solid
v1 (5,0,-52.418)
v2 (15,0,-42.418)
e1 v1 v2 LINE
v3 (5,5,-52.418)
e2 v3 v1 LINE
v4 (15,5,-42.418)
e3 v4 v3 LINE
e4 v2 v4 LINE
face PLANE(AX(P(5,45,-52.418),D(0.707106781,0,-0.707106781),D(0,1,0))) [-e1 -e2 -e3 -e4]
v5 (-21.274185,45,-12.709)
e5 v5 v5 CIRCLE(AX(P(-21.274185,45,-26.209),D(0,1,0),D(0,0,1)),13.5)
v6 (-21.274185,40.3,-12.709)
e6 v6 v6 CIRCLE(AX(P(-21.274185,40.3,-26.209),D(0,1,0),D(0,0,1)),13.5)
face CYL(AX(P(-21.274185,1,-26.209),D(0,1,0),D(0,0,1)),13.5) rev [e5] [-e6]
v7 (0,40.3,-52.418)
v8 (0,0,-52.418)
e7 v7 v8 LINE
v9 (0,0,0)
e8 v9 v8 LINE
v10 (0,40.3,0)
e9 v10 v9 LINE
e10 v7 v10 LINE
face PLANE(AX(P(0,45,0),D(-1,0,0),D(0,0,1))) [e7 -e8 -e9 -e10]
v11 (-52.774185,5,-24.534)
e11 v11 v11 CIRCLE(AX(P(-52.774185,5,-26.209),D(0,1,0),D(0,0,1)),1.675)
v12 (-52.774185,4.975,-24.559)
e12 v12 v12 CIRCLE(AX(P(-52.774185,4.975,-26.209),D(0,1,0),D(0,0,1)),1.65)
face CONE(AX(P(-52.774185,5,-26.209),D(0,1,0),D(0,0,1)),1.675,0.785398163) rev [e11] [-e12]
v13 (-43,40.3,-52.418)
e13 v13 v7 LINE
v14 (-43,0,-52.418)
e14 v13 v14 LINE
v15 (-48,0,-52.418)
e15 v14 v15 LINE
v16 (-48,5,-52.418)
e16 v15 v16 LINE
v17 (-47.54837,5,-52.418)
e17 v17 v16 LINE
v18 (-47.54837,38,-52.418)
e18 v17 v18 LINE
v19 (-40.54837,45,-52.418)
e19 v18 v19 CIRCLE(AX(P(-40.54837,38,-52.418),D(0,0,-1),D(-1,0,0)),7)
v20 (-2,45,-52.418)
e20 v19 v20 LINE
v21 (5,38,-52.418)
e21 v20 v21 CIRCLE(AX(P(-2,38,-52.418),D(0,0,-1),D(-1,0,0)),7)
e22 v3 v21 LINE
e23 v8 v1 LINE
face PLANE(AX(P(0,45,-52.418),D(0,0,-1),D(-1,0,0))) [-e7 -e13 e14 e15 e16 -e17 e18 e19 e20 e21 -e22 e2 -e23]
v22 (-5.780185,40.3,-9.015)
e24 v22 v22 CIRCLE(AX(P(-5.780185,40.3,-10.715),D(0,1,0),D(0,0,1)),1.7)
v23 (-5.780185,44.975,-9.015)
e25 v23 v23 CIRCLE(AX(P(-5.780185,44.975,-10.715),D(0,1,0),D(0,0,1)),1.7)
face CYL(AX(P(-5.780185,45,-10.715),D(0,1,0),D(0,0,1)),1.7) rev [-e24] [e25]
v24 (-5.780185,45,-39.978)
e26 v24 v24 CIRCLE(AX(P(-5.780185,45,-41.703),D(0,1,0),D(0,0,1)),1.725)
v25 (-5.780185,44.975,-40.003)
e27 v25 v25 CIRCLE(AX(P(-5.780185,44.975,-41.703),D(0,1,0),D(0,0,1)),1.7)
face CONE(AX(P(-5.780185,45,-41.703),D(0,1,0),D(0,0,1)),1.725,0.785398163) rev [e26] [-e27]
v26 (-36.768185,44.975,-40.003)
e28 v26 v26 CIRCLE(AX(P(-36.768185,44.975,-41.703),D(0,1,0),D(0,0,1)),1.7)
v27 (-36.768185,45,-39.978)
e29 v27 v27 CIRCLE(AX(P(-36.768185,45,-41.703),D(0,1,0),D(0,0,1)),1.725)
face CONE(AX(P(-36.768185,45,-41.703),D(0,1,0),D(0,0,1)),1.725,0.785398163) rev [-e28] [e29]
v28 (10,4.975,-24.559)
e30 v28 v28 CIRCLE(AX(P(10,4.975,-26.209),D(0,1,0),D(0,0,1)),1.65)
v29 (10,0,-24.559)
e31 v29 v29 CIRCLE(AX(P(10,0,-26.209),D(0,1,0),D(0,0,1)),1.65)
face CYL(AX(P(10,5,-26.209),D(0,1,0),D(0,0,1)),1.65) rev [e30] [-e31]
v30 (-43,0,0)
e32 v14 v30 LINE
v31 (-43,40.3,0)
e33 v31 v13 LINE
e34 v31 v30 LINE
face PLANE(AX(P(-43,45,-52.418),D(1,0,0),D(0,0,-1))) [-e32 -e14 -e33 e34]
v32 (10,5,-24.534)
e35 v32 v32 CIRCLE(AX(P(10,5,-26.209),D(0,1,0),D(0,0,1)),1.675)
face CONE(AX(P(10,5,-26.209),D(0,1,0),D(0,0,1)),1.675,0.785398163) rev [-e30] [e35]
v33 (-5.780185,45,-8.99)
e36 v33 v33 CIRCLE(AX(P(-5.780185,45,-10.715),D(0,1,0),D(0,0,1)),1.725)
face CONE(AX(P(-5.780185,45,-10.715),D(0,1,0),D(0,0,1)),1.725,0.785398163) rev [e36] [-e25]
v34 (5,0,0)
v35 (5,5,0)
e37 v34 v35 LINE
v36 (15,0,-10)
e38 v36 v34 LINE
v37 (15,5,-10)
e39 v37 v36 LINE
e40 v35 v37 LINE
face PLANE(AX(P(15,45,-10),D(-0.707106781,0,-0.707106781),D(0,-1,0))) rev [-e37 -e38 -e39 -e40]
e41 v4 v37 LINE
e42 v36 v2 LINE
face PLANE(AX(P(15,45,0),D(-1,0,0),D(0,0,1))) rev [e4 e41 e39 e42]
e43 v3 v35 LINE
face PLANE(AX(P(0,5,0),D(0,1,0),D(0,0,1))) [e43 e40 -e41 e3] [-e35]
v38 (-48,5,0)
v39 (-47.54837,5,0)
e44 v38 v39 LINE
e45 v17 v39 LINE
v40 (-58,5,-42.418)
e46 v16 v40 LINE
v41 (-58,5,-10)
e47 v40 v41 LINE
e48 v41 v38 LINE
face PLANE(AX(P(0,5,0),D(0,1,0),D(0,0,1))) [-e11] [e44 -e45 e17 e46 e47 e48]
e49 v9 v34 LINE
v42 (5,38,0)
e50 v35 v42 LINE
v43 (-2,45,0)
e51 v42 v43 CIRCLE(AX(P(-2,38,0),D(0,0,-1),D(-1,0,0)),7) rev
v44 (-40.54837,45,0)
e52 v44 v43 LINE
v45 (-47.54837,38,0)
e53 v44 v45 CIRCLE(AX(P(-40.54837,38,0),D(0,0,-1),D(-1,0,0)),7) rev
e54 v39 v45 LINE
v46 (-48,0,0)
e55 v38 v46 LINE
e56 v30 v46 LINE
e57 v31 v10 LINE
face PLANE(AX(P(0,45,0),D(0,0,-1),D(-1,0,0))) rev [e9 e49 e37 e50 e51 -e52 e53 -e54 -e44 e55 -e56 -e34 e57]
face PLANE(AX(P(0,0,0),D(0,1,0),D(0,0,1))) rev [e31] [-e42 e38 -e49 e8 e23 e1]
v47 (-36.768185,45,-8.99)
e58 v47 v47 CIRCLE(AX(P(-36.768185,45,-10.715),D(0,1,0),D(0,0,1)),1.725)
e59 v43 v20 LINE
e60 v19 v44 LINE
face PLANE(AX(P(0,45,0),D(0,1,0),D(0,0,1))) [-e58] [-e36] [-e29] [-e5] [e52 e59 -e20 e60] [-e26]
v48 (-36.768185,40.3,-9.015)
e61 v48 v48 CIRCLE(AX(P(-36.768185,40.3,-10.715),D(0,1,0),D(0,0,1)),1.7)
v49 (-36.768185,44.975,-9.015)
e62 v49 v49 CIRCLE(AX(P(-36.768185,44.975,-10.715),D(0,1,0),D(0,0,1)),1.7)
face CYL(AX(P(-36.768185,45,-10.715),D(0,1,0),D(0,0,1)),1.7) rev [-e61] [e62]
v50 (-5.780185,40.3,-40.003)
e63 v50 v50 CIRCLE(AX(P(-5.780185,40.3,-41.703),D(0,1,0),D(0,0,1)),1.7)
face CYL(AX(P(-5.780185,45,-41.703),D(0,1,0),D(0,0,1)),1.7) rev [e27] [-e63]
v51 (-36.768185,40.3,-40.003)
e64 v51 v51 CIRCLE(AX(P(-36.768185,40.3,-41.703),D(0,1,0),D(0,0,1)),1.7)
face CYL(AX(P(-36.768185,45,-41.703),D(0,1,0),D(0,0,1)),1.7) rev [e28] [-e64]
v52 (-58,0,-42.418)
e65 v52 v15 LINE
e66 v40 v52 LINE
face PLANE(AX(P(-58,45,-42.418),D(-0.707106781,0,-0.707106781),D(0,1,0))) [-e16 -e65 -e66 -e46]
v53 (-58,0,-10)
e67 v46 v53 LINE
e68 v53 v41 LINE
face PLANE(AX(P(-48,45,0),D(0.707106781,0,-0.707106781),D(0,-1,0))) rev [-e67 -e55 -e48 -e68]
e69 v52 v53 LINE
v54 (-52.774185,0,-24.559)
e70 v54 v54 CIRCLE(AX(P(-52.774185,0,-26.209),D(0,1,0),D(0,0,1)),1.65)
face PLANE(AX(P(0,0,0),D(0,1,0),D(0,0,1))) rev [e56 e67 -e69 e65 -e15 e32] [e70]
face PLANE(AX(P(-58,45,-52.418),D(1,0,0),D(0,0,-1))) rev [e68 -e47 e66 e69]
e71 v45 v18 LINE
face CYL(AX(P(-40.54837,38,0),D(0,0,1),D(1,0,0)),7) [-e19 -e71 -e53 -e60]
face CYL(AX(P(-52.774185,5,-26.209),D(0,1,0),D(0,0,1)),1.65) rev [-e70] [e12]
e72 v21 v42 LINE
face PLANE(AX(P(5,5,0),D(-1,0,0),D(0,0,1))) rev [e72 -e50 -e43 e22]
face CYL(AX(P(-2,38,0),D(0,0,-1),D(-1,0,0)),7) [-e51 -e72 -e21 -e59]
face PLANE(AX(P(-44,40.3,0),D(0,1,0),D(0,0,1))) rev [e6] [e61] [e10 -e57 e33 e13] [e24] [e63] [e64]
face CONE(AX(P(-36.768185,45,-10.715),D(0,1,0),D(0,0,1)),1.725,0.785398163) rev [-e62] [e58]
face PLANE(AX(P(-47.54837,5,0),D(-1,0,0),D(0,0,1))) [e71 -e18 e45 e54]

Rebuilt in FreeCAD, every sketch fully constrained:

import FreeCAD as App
import Part
import Sketcher


def edges_at(feature, points):
    """Names of the edges that pass closest to the given points."""
    edges = feature.Shape.Edges
    near = lambda p: min(range(len(edges)), key=lambda i: edges[i].distToShape(Part.Vertex(*p))[0])
    return sorted({f"Edge{near(p) + 1}" for p in points})

doc = App.newDocument("Part")
params = doc.addObject("Spreadsheet::Sheet", "Params")
for row, (alias, value) in enumerate([
    ("sketch1_width", "15 mm"),
    ("pad1_length", "45 mm"),
    ("sketch2_width", "15 mm"),
    ("pad2_length", "45 mm"),
    ("sketch3_width", "10 mm"),
    ("pad3_length", "40 mm"),
    ("sketch4_width", "4.7 mm"),
    ("pad4_length", "44 mm"),
    ("sketch5_diameter", "3.4 mm"),
    ("hole_diameter", "3.4 mm"),
    ("hole_csink_diameter", "3.45 mm"),
    ("sketch6_diameter", "27 mm"),
    ("pocket1_length", "44 mm"),
    ("sketch7_diameter", "3.3 mm"),
    ("hole2_diameter", "3.3 mm"),
    ("hole2_csink_diameter", "3.35 mm"),
    ("chamfer_size", "10 mm"),
    ("fillet_radius", "7 mm"),
], start=1):
    params.set(f"A{row}", alias)
    params.set(f"B{row}", "=" + value)
    params.setAlias(f"B{row}", alias)

body = doc.addObject("PartDesign::Body", "Body")

# Sketch on XZ plane
sketch1 = body.newObject("Sketcher::SketchObject", "Sketch")
sketch1.AttachmentSupport = (doc.getObject("XZ_Plane"), [""])
sketch1.MapMode = "FlatFace"
sketch1.addGeometry([
    Part.LineSegment(App.Vector(0, -52.418, 0), App.Vector(0, 0, 0)),
    Part.LineSegment(App.Vector(0, 0, 0), App.Vector(15, 0, 0)),
    Part.LineSegment(App.Vector(15, 0, 0), App.Vector(15, -52.418, 0)),
    Part.LineSegment(App.Vector(15, -52.418, 0), App.Vector(0, -52.418, 0)),
], False)
sketch1.addConstraint([
    Sketcher.Constraint("Coincident", 0, 2, 1, 1),
    Sketcher.Constraint("Coincident", 1, 2, 2, 1),
    Sketcher.Constraint("Coincident", 2, 2, 3, 1),
    Sketcher.Constraint("Coincident", 3, 2, 0, 1),
    Sketcher.Constraint("Vertical", 0),
    Sketcher.Constraint("Horizontal", 1),
    Sketcher.Constraint("Vertical", 2),
    Sketcher.Constraint("Horizontal", 3),
    Sketcher.Constraint("Coincident", 0, 2, -1, 1),
    Sketcher.Constraint("DistanceX", 1, 1, 1, 2, 15.0),
    Sketcher.Constraint("DistanceY", 0, 1, 0, 2, 52.418),
])
sketch1.setExpression("Constraints[9]", "Params.sketch1_width")
pad1 = body.newObject("PartDesign::Pad", "Pad")
pad1.Profile = sketch1
pad1.setExpression("Length", "Params.pad1_length")
pad1.Reversed = True
body2 = doc.addObject("PartDesign::Body", "Body001")

# Sketch on XZ plane
sketch2 = body2.newObject("Sketcher::SketchObject", "Sketch001")
sketch2.AttachmentSupport = (doc.getObject("XZ_Plane001"), [""])
sketch2.MapMode = "FlatFace"
sketch2.addGeometry([
    Part.LineSegment(App.Vector(-58, -52.418, 0), App.Vector(-58, 0, 0)),
    Part.LineSegment(App.Vector(-58, 0, 0), App.Vector(-43, 0, 0)),
    Part.LineSegment(App.Vector(-43, 0, 0), App.Vector(-43, -52.418, 0)),
    Part.LineSegment(App.Vector(-43, -52.418, 0), App.Vector(-58, -52.418, 0)),
], False)
sketch2.addConstraint([
    Sketcher.Constraint("Coincident", 0, 2, 1, 1),
    Sketcher.Constraint("Coincident", 1, 2, 2, 1),
    Sketcher.Constraint("Coincident", 2, 2, 3, 1),
    Sketcher.Constraint("Coincident", 3, 2, 0, 1),
    Sketcher.Constraint("Vertical", 0),
    Sketcher.Constraint("Horizontal", 1),
    Sketcher.Constraint("Vertical", 2),
    Sketcher.Constraint("Horizontal", 3),
    Sketcher.Constraint("PointOnObject", 0, 2, -1),
    Sketcher.Constraint("DistanceX", 1, 1, 1, 2, 15.0),
    Sketcher.Constraint("DistanceX", 0, 2, -1, 1, 58.0),
    Sketcher.Constraint("DistanceY", 0, 1, 0, 2, 52.418),
])
sketch2.setExpression("Constraints[9]", "Params.sketch2_width")
pad2 = body2.newObject("PartDesign::Pad", "Pad001")
pad2.Profile = sketch2
pad2.setExpression("Length", "Params.pad2_length")
pad2.Reversed = True
body3 = doc.addObject("PartDesign::Body", "Body002")
body3.AllowCompound = True

# Sketch on XZ plane
sketch3 = body3.newObject("Sketcher::SketchObject", "Sketch002")
sketch3.AttachmentSupport = (doc.getObject("XZ_Plane002"), [""])
sketch3.MapMode = "FlatFace"
sketch3.AttachmentOffset = App.Placement(App.Vector(0, 0, -45), App.Rotation())
sketch3.addGeometry([
    Part.LineSegment(App.Vector(-58, -52.418, 0), App.Vector(-58, 0, 0)),  # 0
    Part.LineSegment(App.Vector(-58, 0, 0), App.Vector(-47.54837, 0, 0)),  # 1
    Part.LineSegment(App.Vector(-47.54837, 0, 0), App.Vector(-47.54837, -52.418, 0)),  # 2
    Part.LineSegment(App.Vector(-47.54837, -52.418, 0), App.Vector(-58, -52.418, 0)),  # 3
    Part.LineSegment(App.Vector(5, -52.418, 0), App.Vector(5, 0, 0)),  # 4
    Part.LineSegment(App.Vector(5, 0, 0), App.Vector(15, 0, 0)),  # 5
    Part.LineSegment(App.Vector(15, 0, 0), App.Vector(15, -52.418, 0)),  # 6
    Part.LineSegment(App.Vector(15, -52.418, 0), App.Vector(5, -52.418, 0)),  # 7
], False)
sketch3.addConstraint([
    Sketcher.Constraint("Coincident", 0, 2, 1, 1),
    Sketcher.Constraint("Coincident", 1, 2, 2, 1),
    Sketcher.Constraint("Coincident", 2, 2, 3, 1),
    Sketcher.Constraint("Coincident", 3, 2, 0, 1),
    Sketcher.Constraint("Coincident", 4, 2, 5, 1),
    Sketcher.Constraint("Coincident", 5, 2, 6, 1),
    Sketcher.Constraint("Coincident", 6, 2, 7, 1),
    Sketcher.Constraint("Coincident", 7, 2, 4, 1),
    Sketcher.Constraint("Vertical", 0),
    Sketcher.Constraint("Horizontal", 1),
    Sketcher.Constraint("Vertical", 2),
    Sketcher.Constraint("Horizontal", 3),
    Sketcher.Constraint("Vertical", 4),
    Sketcher.Constraint("Horizontal", 5),
    Sketcher.Constraint("Vertical", 6),
    Sketcher.Constraint("Horizontal", 7),
    Sketcher.Constraint("PointOnObject", 0, 2, -1),
    Sketcher.Constraint("PointOnObject", 4, 2, -1),
    Sketcher.Constraint("Horizontal", 3, 2, 6, 2),
    Sketcher.Constraint("DistanceX", 5, 1, 5, 2, 10.0),
    Sketcher.Constraint("DistanceX", 0, 2, -1, 1, 58.0),
    Sketcher.Constraint("DistanceX", -1, 1, 4, 2, 5.0),
    Sketcher.Constraint("DistanceY", 0, 1, 0, 2, 52.418),
    Sketcher.Constraint("DistanceX", 1, 1, 1, 2, 10.45163),
])
sketch3.setExpression("Constraints[19]", "Params.sketch3_width")
pad3 = body3.newObject("PartDesign::Pad", "Pad002")
pad3.Profile = sketch3
pad3.setExpression("Length", "Params.pad3_length")
doc.recompute()

body4 = doc.addObject("PartDesign::Body", "Body003")
body4.BaseFeature = body3
boolean = body.newObject("PartDesign::Boolean", "Boolean")
boolean.Type = "Cut"
boolean.addObjects([body4])
doc.recompute()

boolean2 = body2.newObject("PartDesign::Boolean", "Boolean001")
boolean2.Type = "Cut"
boolean2.addObjects([body3])
body.AllowCompound = True
doc.recompute()

boolean3 = body.newObject("PartDesign::Boolean", "Boolean002")
boolean3.Type = "Fuse"
boolean3.addObjects([body2])

# Sketch on YZ plane
sketch4 = body.newObject("Sketcher::SketchObject", "Sketch003")
sketch4.AttachmentSupport = (doc.getObject("YZ_Plane"), [""])
sketch4.MapMode = "FlatFace"
sketch4.addGeometry([
    Part.LineSegment(App.Vector(45, -52.418, 0), App.Vector(40.3, -52.418, 0)),
    Part.LineSegment(App.Vector(40.3, -52.418, 0), App.Vector(40.3, 0, 0)),
    Part.LineSegment(App.Vector(40.3, 0, 0), App.Vector(45, 0, 0)),
    Part.LineSegment(App.Vector(45, 0, 0), App.Vector(45, -52.418, 0)),
], False)
sketch4.addConstraint([
    Sketcher.Constraint("Coincident", 0, 2, 1, 1),
    Sketcher.Constraint("Coincident", 1, 2, 2, 1),
    Sketcher.Constraint("Coincident", 2, 2, 3, 1),
    Sketcher.Constraint("Coincident", 3, 2, 0, 1),
    Sketcher.Constraint("Horizontal", 0),
    Sketcher.Constraint("Vertical", 1),
    Sketcher.Constraint("Horizontal", 2),
    Sketcher.Constraint("Vertical", 3),
    Sketcher.Constraint("PointOnObject", 1, 2, -1),
    Sketcher.Constraint("DistanceX", 0, 2, 0, 1, 4.7),
    Sketcher.Constraint("DistanceX", -1, 1, 2, 2, 45.0),
    Sketcher.Constraint("DistanceY", 1, 1, 1, 2, 52.418),
])
sketch4.setExpression("Constraints[9]", "Params.sketch4_width")
pad4 = body.newObject("PartDesign::Pad", "Pad003")
pad4.Profile = sketch4
pad4.setExpression("Length", "Params.pad4_length")
pad4.Reversed = True

# Sketch on XZ plane
sketch5 = body.newObject("Sketcher::SketchObject", "Sketch004")
sketch5.AttachmentSupport = (doc.getObject("XZ_Plane"), [""])
sketch5.MapMode = "FlatFace"
sketch5.AttachmentOffset = App.Placement(App.Vector(0, 0, -45), App.Rotation())
sketch5.addGeometry([
    Part.Circle(App.Vector(-36.768185, -41.703, 0), App.Vector(0, 0, 1), 1.7),
    Part.Circle(App.Vector(-5.780185, -41.703, 0), App.Vector(0, 0, 1), 1.7),
    Part.Circle(App.Vector(-5.780185, -10.715, 0), App.Vector(0, 0, 1), 1.7),
    Part.Circle(App.Vector(-36.768185, -10.715, 0), App.Vector(0, 0, 1), 1.7),
], False)
sketch5.addConstraint([
    Sketcher.Constraint("Equal", 0, 1),
    Sketcher.Constraint("Equal", 1, 2),
    Sketcher.Constraint("Equal", 2, 3),
    Sketcher.Constraint("Horizontal", 0, 3, 1, 3),
    Sketcher.Constraint("Horizontal", 2, 3, 3, 3),
    Sketcher.Constraint("Vertical", 1, 3, 2, 3),
    Sketcher.Constraint("Vertical", 0, 3, 3, 3),
    Sketcher.Constraint("Diameter", 0, 3.4),
    Sketcher.Constraint("DistanceY", 0, 3, -1, 1, 41.703),
    Sketcher.Constraint("DistanceY", 2, 3, -1, 1, 10.715),
    Sketcher.Constraint("DistanceX", 0, 3, 1, 3, 30.988),
    Sketcher.Constraint("DistanceX", 0, 3, -1, 1, 36.768185),
])
sketch5.setExpression("Constraints[7]", "Params.sketch5_diameter")
doc.recompute()
hole = body.newObject("PartDesign::Hole", "Hole")
hole.Profile = sketch5
hole.ThreadType = "None"
hole.setExpression("Diameter", "Params.hole_diameter")
hole.DepthType = "ThroughAll"
hole.HoleCutType = "Countersink"
hole.setExpression("HoleCutDiameter", "Params.hole_csink_diameter")
hole.HoleCutCountersinkAngle = 90
hole.Reversed = True

# Sketch on XZ plane
sketch6 = body.newObject("Sketcher::SketchObject", "Sketch005")
sketch6.AttachmentSupport = (doc.getObject("XZ_Plane"), [""])
sketch6.MapMode = "FlatFace"
sketch6.AttachmentOffset = App.Placement(App.Vector(0, 0, -45), App.Rotation())
sketch6.addGeometry(Part.Circle(App.Vector(-21.274185, -26.209, 0), App.Vector(0, 0, 1), 13.5), False)
sketch6.addConstraint([
    Sketcher.Constraint("Diameter", 0, 27.0),
    Sketcher.Constraint("DistanceY", 0, 3, -1, 1, 26.209),
    Sketcher.Constraint("DistanceX", 0, 3, -1, 1, 21.274185),
])
sketch6.setExpression("Constraints[0]", "Params.sketch6_diameter")
pocket1 = body.newObject("PartDesign::Pocket", "Pocket")
pocket1.Profile = sketch6
pocket1.setExpression("Length", "Params.pocket1_length")
pocket1.Reversed = True

# Sketch on XZ plane
sketch7 = body.newObject("Sketcher::SketchObject", "Sketch006")
sketch7.AttachmentSupport = (doc.getObject("XZ_Plane"), [""])
sketch7.MapMode = "FlatFace"
sketch7.AttachmentOffset = App.Placement(App.Vector(0, 0, -5), App.Rotation())
sketch7.addGeometry([
    Part.Circle(App.Vector(-52.774185, -26.209, 0), App.Vector(0, 0, 1), 1.65),
    Part.Circle(App.Vector(10, -26.209, 0), App.Vector(0, 0, 1), 1.65),
], False)
sketch7.addConstraint([
    Sketcher.Constraint("Equal", 0, 1),
    Sketcher.Constraint("Horizontal", 0, 3, 1, 3),
    Sketcher.Constraint("Diameter", 0, 3.3),
    Sketcher.Constraint("DistanceX", -1, 1, 1, 3, 10.0),
    Sketcher.Constraint("DistanceY", 0, 3, -1, 1, 26.209),
    Sketcher.Constraint("DistanceX", 0, 3, -1, 1, 52.774185),
])
sketch7.setExpression("Constraints[2]", "Params.sketch7_diameter")
doc.recompute()
hole2 = body.newObject("PartDesign::Hole", "Hole001")
hole2.Profile = sketch7
hole2.ThreadType = "None"
hole2.setExpression("Diameter", "Params.hole2_diameter")
hole2.DepthType = "ThroughAll"
hole2.HoleCutType = "Countersink"
hole2.setExpression("HoleCutDiameter", "Params.hole2_csink_diameter")
hole2.HoleCutCountersinkAngle = 90
hole2.Reversed = True
doc.recompute()

chamfer = body.newObject("PartDesign::Chamfer", "Chamfer")
chamfer.Base = (hole2, edges_at(hole2, [
    (15, 2.5, -52.418),
    (15, 2.5, 0),
    (-58, 2.5, 0),
    (-58, 2.5, -52.418),
]))
chamfer.setExpression("Size", "Params.chamfer_size")
doc.recompute()

fillet = body.newObject("PartDesign::Fillet", "Fillet")
fillet.Base = (chamfer, edges_at(chamfer, [(5, 45, -26.209), (-47.548, 45, -26.209)]))
fillet.setExpression("Radius", "Params.fillet_radius")

doc.recompute()
